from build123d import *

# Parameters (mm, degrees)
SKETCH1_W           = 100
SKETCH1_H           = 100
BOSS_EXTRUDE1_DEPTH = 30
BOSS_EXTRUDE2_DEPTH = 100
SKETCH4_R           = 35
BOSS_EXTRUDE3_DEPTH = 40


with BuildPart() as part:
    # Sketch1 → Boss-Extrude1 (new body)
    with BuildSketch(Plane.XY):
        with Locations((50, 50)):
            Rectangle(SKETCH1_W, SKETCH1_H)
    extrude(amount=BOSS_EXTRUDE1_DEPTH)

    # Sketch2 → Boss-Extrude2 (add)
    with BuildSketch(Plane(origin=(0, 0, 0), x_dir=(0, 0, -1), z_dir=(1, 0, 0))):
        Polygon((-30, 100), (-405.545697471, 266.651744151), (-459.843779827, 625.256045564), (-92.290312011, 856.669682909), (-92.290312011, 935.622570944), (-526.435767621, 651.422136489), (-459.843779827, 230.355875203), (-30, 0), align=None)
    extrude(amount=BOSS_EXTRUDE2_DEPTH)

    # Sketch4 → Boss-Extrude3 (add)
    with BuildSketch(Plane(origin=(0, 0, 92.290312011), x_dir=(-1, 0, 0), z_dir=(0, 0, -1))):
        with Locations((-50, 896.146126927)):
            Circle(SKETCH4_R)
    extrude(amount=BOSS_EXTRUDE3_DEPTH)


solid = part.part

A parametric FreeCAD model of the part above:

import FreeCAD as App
import Part
import Sketcher
from FreeCAD import Vector
Q = App.Units.Quantity


def add_polygon(sketch, points):
    """Adds a closed chain of lines whose ends are joined by coincident constraints."""
    first, n = sketch.GeometryCount, len(points)
    for a, b in zip(points, points[1:] + points[:1]):
        sketch.addGeometry(Part.LineSegment(App.Vector(*a, 0), App.Vector(*b, 0)), False)
    for i in range(n):
        sketch.addConstraint(Sketcher.Constraint("Coincident", first + i, 2, first + (i + 1) % n, 1))

doc = App.newDocument("Part")
params = doc.addObject("Spreadsheet::Sheet", "Params")
for row, (alias, value) in enumerate([
    ("sketch1_width", "100 mm"),
    ("pad1_length", "30 mm"),
    ("sketch2_width", "100 mm"),
    ("pad2_length", "100 mm"),
    ("sketch3_diameter", "70 mm"),
    ("pad3_length", "40 mm"),
], start=1):
    params.set(f"A{row}", alias)
    params.set(f"B{row}", "=" + value)
    params.setAlias(f"B{row}", alias)

body = doc.addObject("PartDesign::Body", "Body")

# Sketch on XY plane
sketch1 = body.newObject("Sketcher::SketchObject", "Sketch")
sketch1.AttachmentSupport = (doc.getObject("XY_Plane"), [""])
sketch1.MapMode = "FlatFace"
add_polygon(sketch1, [(0, 100), (0, 0), (100, 0), (100, 100)])  # lines 0-3
sketch1.addConstraint([
    Sketcher.Constraint("Vertical", 0),
    Sketcher.Constraint("Horizontal", 1),
    Sketcher.Constraint("Vertical", 2),
    Sketcher.Constraint("Horizontal", 3),
    Sketcher.Constraint("Coincident", 0, 2, -1, 1),
    Sketcher.Constraint("Equal", 3, 0),
    Sketcher.Constraint("DistanceX", 1, 1, 1, 2, Q("100 mm")),
])
sketch1.setExpression("Constraints[10]", "Params.sketch1_width")
pad1 = body.newObject("PartDesign::Pad", "Pad")
pad1.Profile = sketch1
pad1.setExpression("Length", "Params.pad1_length")

# Sketch on YZ plane
sketch2 = body.newObject("Sketcher::SketchObject", "Sketch001")
sketch2.AttachmentSupport = (doc.getObject("YZ_Plane"), [""])
sketch2.MapMode = "FlatFace"
add_polygon(sketch2, [(100, 30), (266.651744, 405.545697), (625.256046, 459.84378), (856.669683, 92.290312), (935.622571, 92.290312), (651.422136, 526.435768), (230.355875, 459.84378), (0, 30)])  # lines 0-7
sketch2.addConstraint([
    Sketcher.Constraint("Horizontal", 3),
    Sketcher.Constraint("Horizontal", 7),
    Sketcher.Constraint("PointOnObject", 6, 2, -2),
    Sketcher.Constraint("Horizontal", 1, 2, 5, 2),
    Sketcher.Constraint("DistanceX", 7, 1, 7, 2, Q("100 mm")),
    Sketcher.Constraint("DistanceY", -1, 1, 6, 2, Q("30 mm")),
    Sketcher.Constraint("DistanceX", 3, 1, 3, 2, Q("78.952888 mm")),
    Sketcher.Constraint("DistanceX", 0, 2, 1, 2, Q("358.604301 mm")),
    Sketcher.Constraint("Distance", 1, Q("362.691779 mm")),
    Sketcher.Constraint("Distance", 2, Q("434.336072 mm")),
    Sketcher.Constraint("Distance", 5, Q("426.29953 mm")),
    Sketcher.Constraint("DistanceY", -1, 1, 1, 2, Q("459.84378 mm")),
    Sketcher.Constraint("DistanceX", -1, 1, 3, 2, Q("935.622571 mm")),
    Sketcher.Constraint("DistanceX", 0, 2, 2, 2, Q("590.017939 mm")),
    Sketcher.Constraint("DistanceX", 1, 2, 4, 2, Q("26.166091 mm")),
    Sketcher.Constraint("DistanceY", 0, 2, 4, 2, Q("120.89007 mm")),
])
sketch2.setExpression("Constraints[12]", "Params.sketch2_width")
pad2 = body.newObject("PartDesign::Pad", "Pad001")
pad2.Profile = sketch2
pad2.setExpression("Length", "Params.pad2_length")

# Sketch on XY plane
sketch3 = body.newObject("Sketcher::SketchObject", "Sketch002")
sketch3.AttachmentSupport = (doc.getObject("XY_Plane"), [""])
sketch3.MapMode = "FlatFace"
sketch3.AttachmentOffset = App.Placement(Vector(0, 0, 92.290312), App.Rotation())
sketch3.addGeometry(Part.Circle(Vector(50, 896.146127, 0), Vector(0, 0, 1), 35), False)
sketch3.addConstraint([
    Sketcher.Constraint("Diameter", 0, Q("70 mm")),
    Sketcher.Constraint("DistanceX", -1, 1, 0, 3, Q("50 mm")),
    Sketcher.Constraint("DistanceY", -1, 1, 0, 3, Q("896.146127 mm")),
])
sketch3.setExpression("Constraints[0]", "Params.sketch3_diameter")
pad3 = body.newObject("PartDesign::Pad", "Pad002")
pad3.Profile = sketch3
pad3.setExpression("Length", "Params.pad3_length")
pad3.Reversed = True

doc.recompute()
